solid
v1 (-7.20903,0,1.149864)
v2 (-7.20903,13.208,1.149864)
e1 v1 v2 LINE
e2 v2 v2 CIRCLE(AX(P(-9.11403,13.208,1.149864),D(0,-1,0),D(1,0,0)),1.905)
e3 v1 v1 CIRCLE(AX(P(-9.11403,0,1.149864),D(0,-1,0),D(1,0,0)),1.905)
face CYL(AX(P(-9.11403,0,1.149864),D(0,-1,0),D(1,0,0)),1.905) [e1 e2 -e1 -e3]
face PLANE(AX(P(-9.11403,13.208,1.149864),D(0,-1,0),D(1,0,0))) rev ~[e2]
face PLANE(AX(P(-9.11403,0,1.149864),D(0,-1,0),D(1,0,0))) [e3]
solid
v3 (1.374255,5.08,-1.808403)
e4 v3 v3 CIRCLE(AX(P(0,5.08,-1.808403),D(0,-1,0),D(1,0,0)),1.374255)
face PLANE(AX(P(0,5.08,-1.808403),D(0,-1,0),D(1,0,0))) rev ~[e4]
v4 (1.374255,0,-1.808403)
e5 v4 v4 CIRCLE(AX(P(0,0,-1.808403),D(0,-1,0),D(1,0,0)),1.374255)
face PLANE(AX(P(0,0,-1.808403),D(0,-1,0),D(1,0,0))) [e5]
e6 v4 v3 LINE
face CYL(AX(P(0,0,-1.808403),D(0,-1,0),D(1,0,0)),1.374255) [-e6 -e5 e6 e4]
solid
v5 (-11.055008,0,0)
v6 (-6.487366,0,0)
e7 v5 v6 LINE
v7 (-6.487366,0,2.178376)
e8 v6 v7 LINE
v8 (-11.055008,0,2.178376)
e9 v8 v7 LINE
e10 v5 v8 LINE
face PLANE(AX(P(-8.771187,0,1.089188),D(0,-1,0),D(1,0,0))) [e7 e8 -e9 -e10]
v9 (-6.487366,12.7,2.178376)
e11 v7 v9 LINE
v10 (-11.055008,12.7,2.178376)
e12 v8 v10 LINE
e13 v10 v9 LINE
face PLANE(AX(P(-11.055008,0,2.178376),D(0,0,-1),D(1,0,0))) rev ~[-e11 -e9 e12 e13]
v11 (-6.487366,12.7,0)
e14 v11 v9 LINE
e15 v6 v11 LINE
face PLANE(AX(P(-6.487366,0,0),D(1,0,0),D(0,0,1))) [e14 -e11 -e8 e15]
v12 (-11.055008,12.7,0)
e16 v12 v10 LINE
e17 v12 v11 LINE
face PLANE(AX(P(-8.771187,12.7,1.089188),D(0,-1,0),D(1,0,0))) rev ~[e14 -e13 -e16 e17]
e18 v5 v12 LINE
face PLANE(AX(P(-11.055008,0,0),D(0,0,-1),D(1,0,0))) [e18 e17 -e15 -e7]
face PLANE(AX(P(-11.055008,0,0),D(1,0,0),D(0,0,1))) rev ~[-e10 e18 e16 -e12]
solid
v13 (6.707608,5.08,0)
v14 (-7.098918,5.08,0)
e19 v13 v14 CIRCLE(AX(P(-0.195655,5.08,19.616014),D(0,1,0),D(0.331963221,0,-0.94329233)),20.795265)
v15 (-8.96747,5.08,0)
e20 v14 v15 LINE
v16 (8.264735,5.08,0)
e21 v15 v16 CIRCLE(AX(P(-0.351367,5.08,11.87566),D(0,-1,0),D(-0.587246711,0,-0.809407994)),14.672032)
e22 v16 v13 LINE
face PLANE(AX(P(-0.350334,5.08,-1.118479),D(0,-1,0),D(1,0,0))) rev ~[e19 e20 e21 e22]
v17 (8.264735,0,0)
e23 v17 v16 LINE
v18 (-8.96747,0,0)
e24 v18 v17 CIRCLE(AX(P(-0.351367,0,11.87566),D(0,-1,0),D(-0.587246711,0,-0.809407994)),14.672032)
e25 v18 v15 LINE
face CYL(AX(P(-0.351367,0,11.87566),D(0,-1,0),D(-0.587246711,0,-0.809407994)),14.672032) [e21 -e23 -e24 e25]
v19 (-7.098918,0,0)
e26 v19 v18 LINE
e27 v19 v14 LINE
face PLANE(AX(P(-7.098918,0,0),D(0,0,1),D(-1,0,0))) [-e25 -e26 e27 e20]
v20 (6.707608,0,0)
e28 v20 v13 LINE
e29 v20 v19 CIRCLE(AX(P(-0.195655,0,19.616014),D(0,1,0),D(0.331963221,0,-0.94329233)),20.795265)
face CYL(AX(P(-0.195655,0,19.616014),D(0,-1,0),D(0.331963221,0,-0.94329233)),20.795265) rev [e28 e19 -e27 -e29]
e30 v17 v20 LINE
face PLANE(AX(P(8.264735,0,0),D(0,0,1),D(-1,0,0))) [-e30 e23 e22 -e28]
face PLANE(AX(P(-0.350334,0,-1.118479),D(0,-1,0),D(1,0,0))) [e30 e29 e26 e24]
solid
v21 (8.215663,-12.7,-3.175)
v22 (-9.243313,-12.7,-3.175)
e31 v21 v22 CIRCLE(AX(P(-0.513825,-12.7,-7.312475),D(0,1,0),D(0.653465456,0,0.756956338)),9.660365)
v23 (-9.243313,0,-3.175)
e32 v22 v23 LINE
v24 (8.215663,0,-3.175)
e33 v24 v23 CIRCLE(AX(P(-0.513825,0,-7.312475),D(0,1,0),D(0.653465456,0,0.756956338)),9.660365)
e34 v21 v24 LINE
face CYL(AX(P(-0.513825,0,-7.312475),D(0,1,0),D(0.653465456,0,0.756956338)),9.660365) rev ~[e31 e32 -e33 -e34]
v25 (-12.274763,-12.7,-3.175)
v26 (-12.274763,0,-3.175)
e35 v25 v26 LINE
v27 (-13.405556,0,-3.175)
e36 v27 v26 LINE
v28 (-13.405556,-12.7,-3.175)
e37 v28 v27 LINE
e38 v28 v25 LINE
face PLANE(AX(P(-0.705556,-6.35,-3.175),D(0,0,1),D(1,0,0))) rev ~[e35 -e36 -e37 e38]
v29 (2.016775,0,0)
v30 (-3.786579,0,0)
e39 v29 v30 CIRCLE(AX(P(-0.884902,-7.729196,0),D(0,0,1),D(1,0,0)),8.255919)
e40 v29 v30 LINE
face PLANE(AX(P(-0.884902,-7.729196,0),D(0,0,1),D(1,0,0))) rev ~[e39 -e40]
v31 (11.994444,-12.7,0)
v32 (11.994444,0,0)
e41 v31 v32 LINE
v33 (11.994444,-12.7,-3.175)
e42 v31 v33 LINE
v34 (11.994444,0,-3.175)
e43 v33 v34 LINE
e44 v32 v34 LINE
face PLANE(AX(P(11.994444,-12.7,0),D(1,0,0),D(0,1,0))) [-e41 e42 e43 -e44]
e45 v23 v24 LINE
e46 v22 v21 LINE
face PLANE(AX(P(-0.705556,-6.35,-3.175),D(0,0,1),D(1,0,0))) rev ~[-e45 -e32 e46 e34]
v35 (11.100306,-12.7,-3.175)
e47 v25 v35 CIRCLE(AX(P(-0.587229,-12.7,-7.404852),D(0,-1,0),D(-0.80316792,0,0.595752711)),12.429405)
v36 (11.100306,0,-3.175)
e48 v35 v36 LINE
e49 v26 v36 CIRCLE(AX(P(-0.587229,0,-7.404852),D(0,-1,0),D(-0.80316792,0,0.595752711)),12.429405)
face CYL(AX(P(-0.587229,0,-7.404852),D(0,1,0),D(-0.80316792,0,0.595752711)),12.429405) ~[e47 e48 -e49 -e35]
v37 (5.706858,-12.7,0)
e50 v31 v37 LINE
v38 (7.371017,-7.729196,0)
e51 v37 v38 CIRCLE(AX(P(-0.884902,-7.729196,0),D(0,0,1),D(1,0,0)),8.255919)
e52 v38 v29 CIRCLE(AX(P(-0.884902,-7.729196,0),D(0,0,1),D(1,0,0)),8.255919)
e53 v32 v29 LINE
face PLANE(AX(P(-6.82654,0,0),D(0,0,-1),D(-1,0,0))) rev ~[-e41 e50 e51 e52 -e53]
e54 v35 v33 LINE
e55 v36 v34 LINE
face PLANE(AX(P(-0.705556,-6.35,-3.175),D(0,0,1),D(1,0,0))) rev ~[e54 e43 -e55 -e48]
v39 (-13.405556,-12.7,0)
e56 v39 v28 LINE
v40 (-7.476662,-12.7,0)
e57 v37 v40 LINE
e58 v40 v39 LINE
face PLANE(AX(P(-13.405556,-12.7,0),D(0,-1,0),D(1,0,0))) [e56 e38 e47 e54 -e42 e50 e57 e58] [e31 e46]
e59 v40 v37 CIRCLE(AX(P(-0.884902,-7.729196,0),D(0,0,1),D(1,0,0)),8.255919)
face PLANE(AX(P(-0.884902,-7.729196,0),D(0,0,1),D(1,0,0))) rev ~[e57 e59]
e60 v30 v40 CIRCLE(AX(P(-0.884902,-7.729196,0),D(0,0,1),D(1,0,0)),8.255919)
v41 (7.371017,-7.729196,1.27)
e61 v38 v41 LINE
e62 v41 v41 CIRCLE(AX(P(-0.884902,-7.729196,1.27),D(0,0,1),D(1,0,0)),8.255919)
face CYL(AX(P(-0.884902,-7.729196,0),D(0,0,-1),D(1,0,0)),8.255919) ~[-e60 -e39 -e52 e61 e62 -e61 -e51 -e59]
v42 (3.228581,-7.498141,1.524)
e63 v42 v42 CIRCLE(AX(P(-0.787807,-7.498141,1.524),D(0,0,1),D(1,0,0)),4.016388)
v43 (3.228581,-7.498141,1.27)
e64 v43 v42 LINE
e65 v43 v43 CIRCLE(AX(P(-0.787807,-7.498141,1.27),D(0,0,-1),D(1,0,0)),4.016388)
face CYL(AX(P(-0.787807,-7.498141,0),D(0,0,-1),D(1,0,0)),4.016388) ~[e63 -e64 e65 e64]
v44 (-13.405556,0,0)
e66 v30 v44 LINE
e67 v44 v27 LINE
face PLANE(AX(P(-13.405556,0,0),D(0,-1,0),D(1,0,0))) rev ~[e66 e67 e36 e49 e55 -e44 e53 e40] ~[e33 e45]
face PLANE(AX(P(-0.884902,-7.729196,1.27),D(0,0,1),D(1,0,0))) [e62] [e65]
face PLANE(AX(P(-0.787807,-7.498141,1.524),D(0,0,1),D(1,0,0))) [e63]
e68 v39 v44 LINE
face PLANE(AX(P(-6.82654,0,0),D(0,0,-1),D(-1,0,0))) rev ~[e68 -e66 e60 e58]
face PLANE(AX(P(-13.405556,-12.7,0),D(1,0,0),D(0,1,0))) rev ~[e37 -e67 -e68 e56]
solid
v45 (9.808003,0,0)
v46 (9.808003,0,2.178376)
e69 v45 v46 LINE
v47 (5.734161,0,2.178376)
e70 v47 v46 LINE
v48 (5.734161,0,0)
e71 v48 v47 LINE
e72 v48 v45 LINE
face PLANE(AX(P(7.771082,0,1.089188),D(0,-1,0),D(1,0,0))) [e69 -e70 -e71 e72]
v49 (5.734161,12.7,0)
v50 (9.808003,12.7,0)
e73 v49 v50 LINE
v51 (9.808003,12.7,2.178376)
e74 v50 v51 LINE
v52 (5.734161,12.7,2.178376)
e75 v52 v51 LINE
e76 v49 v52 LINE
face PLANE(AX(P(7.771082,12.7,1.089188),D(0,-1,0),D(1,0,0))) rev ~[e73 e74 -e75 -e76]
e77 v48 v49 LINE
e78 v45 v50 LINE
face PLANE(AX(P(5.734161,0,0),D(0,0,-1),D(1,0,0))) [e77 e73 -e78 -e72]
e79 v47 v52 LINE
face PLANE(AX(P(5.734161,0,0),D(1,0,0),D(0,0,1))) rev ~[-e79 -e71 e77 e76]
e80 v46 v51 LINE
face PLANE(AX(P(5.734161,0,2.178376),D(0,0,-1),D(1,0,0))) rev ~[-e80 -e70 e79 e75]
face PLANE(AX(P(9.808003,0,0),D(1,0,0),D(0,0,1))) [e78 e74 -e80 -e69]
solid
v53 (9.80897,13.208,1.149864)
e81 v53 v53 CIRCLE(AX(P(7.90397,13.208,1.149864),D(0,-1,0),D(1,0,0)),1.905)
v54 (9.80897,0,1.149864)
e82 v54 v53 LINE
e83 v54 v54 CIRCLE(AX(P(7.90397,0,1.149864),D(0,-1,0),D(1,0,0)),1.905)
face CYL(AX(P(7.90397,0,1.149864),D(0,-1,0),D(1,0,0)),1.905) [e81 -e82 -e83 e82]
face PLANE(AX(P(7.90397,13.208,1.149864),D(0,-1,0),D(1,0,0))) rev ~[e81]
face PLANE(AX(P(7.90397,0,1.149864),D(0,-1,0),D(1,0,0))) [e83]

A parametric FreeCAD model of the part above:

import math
import FreeCAD as App
import Part
import Sketcher
Q = App.Units.Quantity

doc = App.newDocument("Part")
body = doc.addObject("PartDesign::Body", "Body")

# Sketch on XY plane
sketch1 = doc.addObject("Sketcher::SketchObject", "Sketch")
body.addObject(sketch1)
sketch1.AttachmentSupport = (doc.XY_Plane, [""])
sketch1.MapMode = "FlatFace"
sketch1.addGeometry([
    Part.LineSegment(App.Vector(-13, 0, 0), App.Vector(-13, -13, 0)),
    Part.LineSegment(App.Vector(-13, -13, 0), App.Vector(12, -13, 0)),
    Part.LineSegment(App.Vector(12, -13, 0), App.Vector(12, 0, 0)),
    Part.LineSegment(App.Vector(12, 0, 0), App.Vector(-13, 0, 0)),
], False)
sketch1.addConstraint([
    Sketcher.Constraint("Coincident", 0, 2, 1, 1),
    Sketcher.Constraint("Coincident", 1, 2, 2, 1),
    Sketcher.Constraint("Coincident", 2, 2, 3, 1),
    Sketcher.Constraint("Coincident", 3, 2, 0, 1),
    Sketcher.Constraint("Vertical", 0),
    Sketcher.Constraint("Horizontal", 1),
    Sketcher.Constraint("Vertical", 2),
    Sketcher.Constraint("Horizontal", 3),
    Sketcher.Constraint("PointOnObject", 2, 2, -1),
    Sketcher.Constraint("DistanceX", 1, 1, 1, 2, Q("1 in")),
    Sketcher.Constraint("DistanceY", 0, 2, 0, 1, Q("0.5 in")),
    Sketcher.Constraint("DistanceX", 0, 2, -1, 1, 13.405556),
])
pad1 = doc.addObject("PartDesign::Pad", "Pad")
body.addObject(pad1)
pad1.Profile = sketch1
pad1.Length = Q("0.125 in")
pad1.Reversed = True

# Sketch on XZ plane
sketch2 = doc.addObject("Sketcher::SketchObject", "Sketch001")
body.addObject(sketch2)
sketch2.AttachmentSupport = (doc.XZ_Plane, [""])
sketch2.MapMode = "FlatFace"
sketch2.addGeometry([
    Part.LineSegment(App.Vector(-6.8, 0, 0), App.Vector(-10.6, 0, 0)),
    Part.ArcOfCircle(Part.Circle(App.Vector(-0.6, -7.4, 0), App.Vector(0, 0, 1), 12.4), math.radians(143), math.radians(397)),
    Part.LineSegment(App.Vector(9.4, 0, 0), App.Vector(5.8, 0, 0)),
    Part.ArcOfCircle(Part.Circle(App.Vector(-0.5, -7.3, 0), App.Vector(0, 0, 1), 9.7), math.radians(131), math.radians(409)),
], False)
sketch2.addConstraint([
    Sketcher.Constraint("Coincident", 0, 2, 1, 1),
    Sketcher.Constraint("Coincident", 1, 2, 2, 1),
    Sketcher.Constraint("Coincident", 2, 2, 3, 2),
    Sketcher.Constraint("Coincident", 3, 1, 0, 1),
    Sketcher.Constraint("Horizontal", 0),
    Sketcher.Constraint("Horizontal", 2),
    Sketcher.Constraint("PointOnObject", 0, 2, -1),
    Sketcher.Constraint("PointOnObject", 1, 2, -1),
    Sketcher.Constraint("Radius", 1, 12.429405),
    Sketcher.Constraint("Radius", 3, 9.660365),
    Sketcher.Constraint("DistanceX", 0, 2, 0, 1, 3.743588),
    Sketcher.Constraint("DistanceX", 2, 2, 2, 1, 3.596781),
    Sketcher.Constraint("DistanceX", 0, 2, 1, 3, 9.9829),
    Sketcher.Constraint("DistanceX", 1, 3, -1, 1, 0.587229),
])
pad2 = doc.addObject("PartDesign::Pad", "Pad001")
body.addObject(pad2)
pad2.Profile = sketch2
pad2.Length = Q("0.5 in")

# Sketch on XY plane
sketch3 = doc.addObject("Sketcher::SketchObject", "Sketch002")
body.addObject(sketch3)
sketch3.AttachmentSupport = (doc.XY_Plane, [""])
sketch3.MapMode = "FlatFace"
sketch3.addGeometry(Part.Circle(App.Vector(-1, -8, 0), App.Vector(0, 0, 1), 8), False)
sketch3.addConstraint([
    Sketcher.Constraint("Diameter", 0, 16.511838),
    Sketcher.Constraint("DistanceX", 0, 3, -1, 1, 0.884902),
    Sketcher.Constraint("DistanceY", 0, 3, -1, 1, 7.729196),
])
pad3 = doc.addObject("PartDesign::Pad", "Pad002")
body.addObject(pad3)
pad3.Profile = sketch3
pad3.Length = Q("0.05 in")

# Sketch on XY plane
sketch4 = doc.addObject("Sketcher::SketchObject", "Sketch003")
body.addObject(sketch4)
sketch4.AttachmentSupport = (doc.XY_Plane, [""])
sketch4.MapMode = "FlatFace"
sketch4.addGeometry(Part.Circle(App.Vector(-0.8, -7.5, 0), App.Vector(0, 0, 1), 4), False)
sketch4.addConstraint([
    Sketcher.Constraint("Diameter", 0, 8.032776),
    Sketcher.Constraint("DistanceY", 0, 3, -1, 1, 7.498141),
    Sketcher.Constraint("DistanceX", 0, 3, -1, 1, 0.787807),
])
pad4 = doc.addObject("PartDesign::Pad", "Pad003")
body.addObject(pad4)
pad4.Profile = sketch4
pad4.Length = Q("0.06 in")
body2 = doc.addObject("PartDesign::Body", "Body001")
body2.AllowCompound = True

# Sketch on XZ plane
sketch5 = doc.addObject("Sketcher::SketchObject", "Sketch004")
body2.addObject(sketch5)
sketch5.AttachmentSupport = (doc.getObject("XZ_Plane001"), [""])
sketch5.MapMode = "FlatFace"
sketch5.addGeometry([
    Part.LineSegment(App.Vector(5.7, 2.2, 0), App.Vector(5.7, 0, 0)),  # 0
    Part.LineSegment(App.Vector(5.7, 0, 0), App.Vector(9.8, 0, 0)),  # 1
    Part.LineSegment(App.Vector(9.8, 0, 0), App.Vector(9.8, 2.2, 0)),  # 2
    Part.LineSegment(App.Vector(9.8, 2.2, 0), App.Vector(5.7, 2.2, 0)),  # 3
    Part.LineSegment(App.Vector(-11.1, 2.2, 0), App.Vector(-11.1, 0, 0)),  # 4
    Part.LineSegment(App.Vector(-11.1, 0, 0), App.Vector(-6.5, 0, 0)),  # 5
    Part.LineSegment(App.Vector(-6.5, 0, 0), App.Vector(-6.5, 2.2, 0)),  # 6
    Part.LineSegment(App.Vector(-6.5, 2.2, 0), App.Vector(-11.1, 2.2, 0)),  # 7
], False)
sketch5.addConstraint([
    Sketcher.Constraint("Coincident", 0, 2, 1, 1),
    Sketcher.Constraint("Coincident", 1, 2, 2, 1),
    Sketcher.Constraint("Coincident", 2, 2, 3, 1),
    Sketcher.Constraint("Coincident", 3, 2, 0, 1),
    Sketcher.Constraint("Coincident", 4, 2, 5, 1),
    Sketcher.Constraint("Coincident", 5, 2, 6, 1),
    Sketcher.Constraint("Coincident", 6, 2, 7, 1),
    Sketcher.Constraint("Coincident", 7, 2, 4, 1),
    Sketcher.Constraint("Vertical", 0),
    Sketcher.Constraint("Horizontal", 1),
    Sketcher.Constraint("Vertical", 2),
    Sketcher.Constraint("Horizontal", 3),
    Sketcher.Constraint("Vertical", 4),
    Sketcher.Constraint("Horizontal", 5),
    Sketcher.Constraint("Vertical", 6),
    Sketcher.Constraint("Horizontal", 7),
    Sketcher.Constraint("PointOnObject", 0, 2, -1),
    Sketcher.Constraint("PointOnObject", 4, 2, -1),
    Sketcher.Constraint("Horizontal", 3, 2, 6, 2),
    Sketcher.Constraint("DistanceX", 1, 1, 1, 2, 4.073842),
    Sketcher.Constraint("DistanceX", 5, 1, 5, 2, 4.567642),
    Sketcher.Constraint("DistanceY", 0, 2, 0, 1, 2.178376),
    Sketcher.Constraint("DistanceX", -1, 1, 0, 2, 5.734161),
    Sketcher.Constraint("DistanceX", 4, 2, -1, 1, 11.055008),
])
pad5 = doc.addObject("PartDesign::Pad", "Pad004")
body2.addObject(pad5)
pad5.Profile = sketch5
pad5.Length = Q("0.5 in")
pad5.Reversed = True
body3 = doc.addObject("PartDesign::Body", "Body002")

# Sketch on XZ plane
sketch6 = doc.addObject("Sketcher::SketchObject", "Sketch005")
body3.addObject(sketch6)
sketch6.AttachmentSupport = (doc.getObject("XZ_Plane002"), [""])
sketch6.MapMode = "FlatFace"
sketch6.addGeometry([
    Part.LineSegment(App.Vector(-7.1, 0, 0), App.Vector(-9, 0, 0)),
    Part.ArcOfCircle(Part.Circle(App.Vector(-0.4, 11.9, 0), App.Vector(0, 0, 1), 14.7), math.radians(-126), math.radians(-54)),
    Part.LineSegment(App.Vector(8.3, 0, 0), App.Vector(6.7, 0, 0)),
    Part.ArcOfCircle(Part.Circle(App.Vector(-0.2, 19.6, 0), App.Vector(0, 0, 1), 20.8), math.radians(-109), math.radians(-71)),
], False)
sketch6.addConstraint([
    Sketcher.Constraint("Coincident", 0, 2, 1, 1),
    Sketcher.Constraint("Coincident", 1, 2, 2, 1),
    Sketcher.Constraint("Coincident", 2, 2, 3, 2),
    Sketcher.Constraint("Coincident", 3, 1, 0, 1),
    Sketcher.Constraint("Horizontal", 0),
    Sketcher.Constraint("Horizontal", 2),
    Sketcher.Constraint("PointOnObject", 0, 2, -1),
    Sketcher.Constraint("PointOnObject", 1, 2, -1),
    Sketcher.Constraint("Radius", 1, 14.672032),
    Sketcher.Constraint("Radius", 3, 20.795265),
    Sketcher.Constraint("DistanceX", 0, 2, 0, 1, 1.868552),
    Sketcher.Constraint("DistanceX", 2, 2, 2, 1, 1.557127),
    Sketcher.Constraint("DistanceY", -1, 1, 1, 3, 11.87566),
    Sketcher.Constraint("DistanceX", 0, 2, -1, 1, 8.96747),
])
pad6 = doc.addObject("PartDesign::Pad", "Pad005")
body3.addObject(pad6)
pad6.Profile = sketch6
pad6.Length = Q("0.2 in")
pad6.Reversed = True
body4 = doc.addObject("PartDesign::Body", "Body003")
body4.AllowCompound = True

# Sketch on XZ plane
sketch7 = doc.addObject("Sketcher::SketchObject", "Sketch006")
body4.addObject(sketch7)
sketch7.AttachmentSupport = (doc.getObject("XZ_Plane003"), [""])
sketch7.MapMode = "FlatFace"
sketch7.addGeometry([
    Part.Circle(App.Vector(-9.1, 1.1, 0), App.Vector(0, 0, 1), 1.9),
    Part.Circle(App.Vector(7.9, 1.1, 0), App.Vector(0, 0, 1), 1.9),
], False)
sketch7.addConstraint([
    Sketcher.Constraint("Equal", 0, 1),
    Sketcher.Constraint("Horizontal", 0, 3, 1, 3),
    Sketcher.Constraint("Diameter", 0, Q("0.15 in")),
    Sketcher.Constraint("DistanceX", 0, 3, 1, 3, Q("0.67 in")),
    Sketcher.Constraint("DistanceX", 0, 3, -1, 1, 9.11403),
    Sketcher.Constraint("DistanceY", -1, 1, 0, 3, 1.149864),
])
pad7 = doc.addObject("PartDesign::Pad", "Pad006")
body4.addObject(pad7)
pad7.Profile = sketch7
pad7.Length = Q("0.52 in")
pad7.Reversed = True
body5 = doc.addObject("PartDesign::Body", "Body004")

# Sketch on XZ plane
sketch8 = doc.addObject("Sketcher::SketchObject", "Sketch007")
body5.addObject(sketch8)
sketch8.AttachmentSupport = (doc.getObject("XZ_Plane004"), [""])
sketch8.MapMode = "FlatFace"
sketch8.addGeometry(Part.Circle(App.Vector(0, -1.8, 0), App.Vector(0, 0, 1), 1.4), False)
sketch8.addConstraint([
    Sketcher.Constraint("PointOnObject", 0, 3, -2),
    Sketcher.Constraint("Diameter", 0, 2.74851),
    Sketcher.Constraint("DistanceY", 0, 3, -1, 1, 1.808403),
])
pad8 = doc.addObject("PartDesign::Pad", "Pad007")
body5.addObject(pad8)
pad8.Profile = sketch8
pad8.Length = Q("0.2 in")
pad8.Reversed = True

doc.recompute()
